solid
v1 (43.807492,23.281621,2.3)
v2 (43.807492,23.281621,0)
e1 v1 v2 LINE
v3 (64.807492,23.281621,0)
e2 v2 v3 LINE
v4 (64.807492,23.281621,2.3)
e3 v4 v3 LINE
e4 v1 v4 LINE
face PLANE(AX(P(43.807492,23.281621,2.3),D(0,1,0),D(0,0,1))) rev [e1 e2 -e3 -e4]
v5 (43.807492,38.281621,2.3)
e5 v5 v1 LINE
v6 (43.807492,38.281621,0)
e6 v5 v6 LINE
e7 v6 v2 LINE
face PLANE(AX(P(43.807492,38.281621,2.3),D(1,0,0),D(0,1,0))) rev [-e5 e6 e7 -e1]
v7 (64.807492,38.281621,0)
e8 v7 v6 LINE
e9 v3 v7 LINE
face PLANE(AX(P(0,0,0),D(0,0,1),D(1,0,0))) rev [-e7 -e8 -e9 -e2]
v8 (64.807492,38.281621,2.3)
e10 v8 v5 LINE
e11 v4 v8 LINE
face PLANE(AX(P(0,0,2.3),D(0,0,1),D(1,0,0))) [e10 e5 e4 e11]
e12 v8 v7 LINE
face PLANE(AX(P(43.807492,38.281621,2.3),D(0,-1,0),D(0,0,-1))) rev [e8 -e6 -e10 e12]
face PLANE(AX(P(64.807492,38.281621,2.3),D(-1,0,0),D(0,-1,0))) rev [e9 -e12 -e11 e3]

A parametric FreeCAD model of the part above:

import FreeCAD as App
import Part
import Sketcher
Q = App.Units.Quantity

doc = App.newDocument("Part")
body = doc.addObject("PartDesign::Body", "Body")

# Sketch on XY plane
sketch1 = body.newObject("Sketcher::SketchObject", "Sketch")
sketch1.AttachmentSupport = (doc.getObject("XY_Plane"), [""])
sketch1.MapMode = "FlatFace"
sketch1.addGeometry(Part.LineSegment(App.Vector(43.807492, 38.281621, 0), App.Vector(43.807492, 23.281621, 0)), False)
sketch1.addGeometry(Part.LineSegment(App.Vector(43.807492, 23.281621, 0), App.Vector(64.807492, 23.281621, 0)), False)
sketch1.addGeometry(Part.LineSegment(App.Vector(64.807492, 23.281621, 0), App.Vector(64.807492, 38.281621, 0)), False)
sketch1.addGeometry(Part.LineSegment(App.Vector(64.807492, 38.281621, 0), App.Vector(43.807492, 38.281621, 0)), False)
sketch1.addConstraint(Sketcher.Constraint("Coincident", 0, 2, 1, 1))
sketch1.addConstraint(Sketcher.Constraint("Coincident", 1, 2, 2, 1))
sketch1.addConstraint(Sketcher.Constraint("Coincident", 2, 2, 3, 1))
sketch1.addConstraint(Sketcher.Constraint("Coincident", 3, 2, 0, 1))
sketch1.addConstraint(Sketcher.Constraint("Vertical", 0))
sketch1.addConstraint(Sketcher.Constraint("Horizontal", 1))
sketch1.addConstraint(Sketcher.Constraint("Vertical", 2))
sketch1.addConstraint(Sketcher.Constraint("Horizontal", 3))
sketch1.addConstraint(Sketcher.Constraint("DistanceX", 1, 1, 1, 2, Q("21 mm")))
sketch1.addConstraint(Sketcher.Constraint("DistanceY", 0, 2, 0, 1, Q("15 mm")))
sketch1.addConstraint(Sketcher.Constraint("DistanceX", -1, 1, 0, 2, Q("43.807492 mm")))
sketch1.addConstraint(Sketcher.Constraint("DistanceY", -1, 1, 0, 2, Q("23.281621 mm")))
pad1 = body.newObject("PartDesign::Pad", "Pad")
pad1.Profile = sketch1
pad1.Length = 2.3

doc.recompute()
